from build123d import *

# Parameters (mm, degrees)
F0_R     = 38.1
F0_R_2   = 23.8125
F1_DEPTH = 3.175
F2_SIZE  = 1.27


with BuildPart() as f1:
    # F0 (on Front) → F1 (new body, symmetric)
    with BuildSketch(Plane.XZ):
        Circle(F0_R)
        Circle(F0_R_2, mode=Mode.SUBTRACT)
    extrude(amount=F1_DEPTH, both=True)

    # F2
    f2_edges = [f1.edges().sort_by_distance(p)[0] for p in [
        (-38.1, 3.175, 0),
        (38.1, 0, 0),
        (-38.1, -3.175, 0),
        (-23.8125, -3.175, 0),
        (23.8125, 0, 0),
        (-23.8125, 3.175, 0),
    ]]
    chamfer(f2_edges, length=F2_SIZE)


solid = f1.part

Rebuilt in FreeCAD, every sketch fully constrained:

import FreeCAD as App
import Part
import Sketcher

V = App.Vector
Q = App.Units.Quantity

doc = App.newDocument("Part")
body = doc.addObject("PartDesign::Body", "Body")

# Sketch on XZ plane
sketch1 = body.newObject("Sketcher::SketchObject", "Sketch")
sketch1.AttachmentSupport = (doc.getObject("XZ_Plane"), [""])
sketch1.MapMode = "FlatFace"
sketch1.addGeometry([
    Part.Circle(V(0, 0, 0), V(0, 0, 1), 38),
    Part.Circle(V(0, 0, 0), V(0, 0, 1), 24),
], False)
sketch1.addConstraint([
    Sketcher.Constraint("Coincident", 0, 3, -1, 1),
    Sketcher.Constraint("Coincident", 1, 3, -1, 1),
    Sketcher.Constraint("Diameter", 0, Q("3 in")),
    Sketcher.Constraint("Diameter", 1, Q("1.875 in")),
])
pad1 = body.newObject("PartDesign::Pad", "Pad")
pad1.Profile = sketch1
pad1.Length = Q("0.25 in")
pad1.Midplane = True
doc.recompute()

chamfer = body.newObject("PartDesign::Chamfer", "Chamfer")
chamfer.Base = (pad1, ["Edge1"])
chamfer.UseAllEdges = True
chamfer.Size = Q("0.05 in")

doc.recompute()
